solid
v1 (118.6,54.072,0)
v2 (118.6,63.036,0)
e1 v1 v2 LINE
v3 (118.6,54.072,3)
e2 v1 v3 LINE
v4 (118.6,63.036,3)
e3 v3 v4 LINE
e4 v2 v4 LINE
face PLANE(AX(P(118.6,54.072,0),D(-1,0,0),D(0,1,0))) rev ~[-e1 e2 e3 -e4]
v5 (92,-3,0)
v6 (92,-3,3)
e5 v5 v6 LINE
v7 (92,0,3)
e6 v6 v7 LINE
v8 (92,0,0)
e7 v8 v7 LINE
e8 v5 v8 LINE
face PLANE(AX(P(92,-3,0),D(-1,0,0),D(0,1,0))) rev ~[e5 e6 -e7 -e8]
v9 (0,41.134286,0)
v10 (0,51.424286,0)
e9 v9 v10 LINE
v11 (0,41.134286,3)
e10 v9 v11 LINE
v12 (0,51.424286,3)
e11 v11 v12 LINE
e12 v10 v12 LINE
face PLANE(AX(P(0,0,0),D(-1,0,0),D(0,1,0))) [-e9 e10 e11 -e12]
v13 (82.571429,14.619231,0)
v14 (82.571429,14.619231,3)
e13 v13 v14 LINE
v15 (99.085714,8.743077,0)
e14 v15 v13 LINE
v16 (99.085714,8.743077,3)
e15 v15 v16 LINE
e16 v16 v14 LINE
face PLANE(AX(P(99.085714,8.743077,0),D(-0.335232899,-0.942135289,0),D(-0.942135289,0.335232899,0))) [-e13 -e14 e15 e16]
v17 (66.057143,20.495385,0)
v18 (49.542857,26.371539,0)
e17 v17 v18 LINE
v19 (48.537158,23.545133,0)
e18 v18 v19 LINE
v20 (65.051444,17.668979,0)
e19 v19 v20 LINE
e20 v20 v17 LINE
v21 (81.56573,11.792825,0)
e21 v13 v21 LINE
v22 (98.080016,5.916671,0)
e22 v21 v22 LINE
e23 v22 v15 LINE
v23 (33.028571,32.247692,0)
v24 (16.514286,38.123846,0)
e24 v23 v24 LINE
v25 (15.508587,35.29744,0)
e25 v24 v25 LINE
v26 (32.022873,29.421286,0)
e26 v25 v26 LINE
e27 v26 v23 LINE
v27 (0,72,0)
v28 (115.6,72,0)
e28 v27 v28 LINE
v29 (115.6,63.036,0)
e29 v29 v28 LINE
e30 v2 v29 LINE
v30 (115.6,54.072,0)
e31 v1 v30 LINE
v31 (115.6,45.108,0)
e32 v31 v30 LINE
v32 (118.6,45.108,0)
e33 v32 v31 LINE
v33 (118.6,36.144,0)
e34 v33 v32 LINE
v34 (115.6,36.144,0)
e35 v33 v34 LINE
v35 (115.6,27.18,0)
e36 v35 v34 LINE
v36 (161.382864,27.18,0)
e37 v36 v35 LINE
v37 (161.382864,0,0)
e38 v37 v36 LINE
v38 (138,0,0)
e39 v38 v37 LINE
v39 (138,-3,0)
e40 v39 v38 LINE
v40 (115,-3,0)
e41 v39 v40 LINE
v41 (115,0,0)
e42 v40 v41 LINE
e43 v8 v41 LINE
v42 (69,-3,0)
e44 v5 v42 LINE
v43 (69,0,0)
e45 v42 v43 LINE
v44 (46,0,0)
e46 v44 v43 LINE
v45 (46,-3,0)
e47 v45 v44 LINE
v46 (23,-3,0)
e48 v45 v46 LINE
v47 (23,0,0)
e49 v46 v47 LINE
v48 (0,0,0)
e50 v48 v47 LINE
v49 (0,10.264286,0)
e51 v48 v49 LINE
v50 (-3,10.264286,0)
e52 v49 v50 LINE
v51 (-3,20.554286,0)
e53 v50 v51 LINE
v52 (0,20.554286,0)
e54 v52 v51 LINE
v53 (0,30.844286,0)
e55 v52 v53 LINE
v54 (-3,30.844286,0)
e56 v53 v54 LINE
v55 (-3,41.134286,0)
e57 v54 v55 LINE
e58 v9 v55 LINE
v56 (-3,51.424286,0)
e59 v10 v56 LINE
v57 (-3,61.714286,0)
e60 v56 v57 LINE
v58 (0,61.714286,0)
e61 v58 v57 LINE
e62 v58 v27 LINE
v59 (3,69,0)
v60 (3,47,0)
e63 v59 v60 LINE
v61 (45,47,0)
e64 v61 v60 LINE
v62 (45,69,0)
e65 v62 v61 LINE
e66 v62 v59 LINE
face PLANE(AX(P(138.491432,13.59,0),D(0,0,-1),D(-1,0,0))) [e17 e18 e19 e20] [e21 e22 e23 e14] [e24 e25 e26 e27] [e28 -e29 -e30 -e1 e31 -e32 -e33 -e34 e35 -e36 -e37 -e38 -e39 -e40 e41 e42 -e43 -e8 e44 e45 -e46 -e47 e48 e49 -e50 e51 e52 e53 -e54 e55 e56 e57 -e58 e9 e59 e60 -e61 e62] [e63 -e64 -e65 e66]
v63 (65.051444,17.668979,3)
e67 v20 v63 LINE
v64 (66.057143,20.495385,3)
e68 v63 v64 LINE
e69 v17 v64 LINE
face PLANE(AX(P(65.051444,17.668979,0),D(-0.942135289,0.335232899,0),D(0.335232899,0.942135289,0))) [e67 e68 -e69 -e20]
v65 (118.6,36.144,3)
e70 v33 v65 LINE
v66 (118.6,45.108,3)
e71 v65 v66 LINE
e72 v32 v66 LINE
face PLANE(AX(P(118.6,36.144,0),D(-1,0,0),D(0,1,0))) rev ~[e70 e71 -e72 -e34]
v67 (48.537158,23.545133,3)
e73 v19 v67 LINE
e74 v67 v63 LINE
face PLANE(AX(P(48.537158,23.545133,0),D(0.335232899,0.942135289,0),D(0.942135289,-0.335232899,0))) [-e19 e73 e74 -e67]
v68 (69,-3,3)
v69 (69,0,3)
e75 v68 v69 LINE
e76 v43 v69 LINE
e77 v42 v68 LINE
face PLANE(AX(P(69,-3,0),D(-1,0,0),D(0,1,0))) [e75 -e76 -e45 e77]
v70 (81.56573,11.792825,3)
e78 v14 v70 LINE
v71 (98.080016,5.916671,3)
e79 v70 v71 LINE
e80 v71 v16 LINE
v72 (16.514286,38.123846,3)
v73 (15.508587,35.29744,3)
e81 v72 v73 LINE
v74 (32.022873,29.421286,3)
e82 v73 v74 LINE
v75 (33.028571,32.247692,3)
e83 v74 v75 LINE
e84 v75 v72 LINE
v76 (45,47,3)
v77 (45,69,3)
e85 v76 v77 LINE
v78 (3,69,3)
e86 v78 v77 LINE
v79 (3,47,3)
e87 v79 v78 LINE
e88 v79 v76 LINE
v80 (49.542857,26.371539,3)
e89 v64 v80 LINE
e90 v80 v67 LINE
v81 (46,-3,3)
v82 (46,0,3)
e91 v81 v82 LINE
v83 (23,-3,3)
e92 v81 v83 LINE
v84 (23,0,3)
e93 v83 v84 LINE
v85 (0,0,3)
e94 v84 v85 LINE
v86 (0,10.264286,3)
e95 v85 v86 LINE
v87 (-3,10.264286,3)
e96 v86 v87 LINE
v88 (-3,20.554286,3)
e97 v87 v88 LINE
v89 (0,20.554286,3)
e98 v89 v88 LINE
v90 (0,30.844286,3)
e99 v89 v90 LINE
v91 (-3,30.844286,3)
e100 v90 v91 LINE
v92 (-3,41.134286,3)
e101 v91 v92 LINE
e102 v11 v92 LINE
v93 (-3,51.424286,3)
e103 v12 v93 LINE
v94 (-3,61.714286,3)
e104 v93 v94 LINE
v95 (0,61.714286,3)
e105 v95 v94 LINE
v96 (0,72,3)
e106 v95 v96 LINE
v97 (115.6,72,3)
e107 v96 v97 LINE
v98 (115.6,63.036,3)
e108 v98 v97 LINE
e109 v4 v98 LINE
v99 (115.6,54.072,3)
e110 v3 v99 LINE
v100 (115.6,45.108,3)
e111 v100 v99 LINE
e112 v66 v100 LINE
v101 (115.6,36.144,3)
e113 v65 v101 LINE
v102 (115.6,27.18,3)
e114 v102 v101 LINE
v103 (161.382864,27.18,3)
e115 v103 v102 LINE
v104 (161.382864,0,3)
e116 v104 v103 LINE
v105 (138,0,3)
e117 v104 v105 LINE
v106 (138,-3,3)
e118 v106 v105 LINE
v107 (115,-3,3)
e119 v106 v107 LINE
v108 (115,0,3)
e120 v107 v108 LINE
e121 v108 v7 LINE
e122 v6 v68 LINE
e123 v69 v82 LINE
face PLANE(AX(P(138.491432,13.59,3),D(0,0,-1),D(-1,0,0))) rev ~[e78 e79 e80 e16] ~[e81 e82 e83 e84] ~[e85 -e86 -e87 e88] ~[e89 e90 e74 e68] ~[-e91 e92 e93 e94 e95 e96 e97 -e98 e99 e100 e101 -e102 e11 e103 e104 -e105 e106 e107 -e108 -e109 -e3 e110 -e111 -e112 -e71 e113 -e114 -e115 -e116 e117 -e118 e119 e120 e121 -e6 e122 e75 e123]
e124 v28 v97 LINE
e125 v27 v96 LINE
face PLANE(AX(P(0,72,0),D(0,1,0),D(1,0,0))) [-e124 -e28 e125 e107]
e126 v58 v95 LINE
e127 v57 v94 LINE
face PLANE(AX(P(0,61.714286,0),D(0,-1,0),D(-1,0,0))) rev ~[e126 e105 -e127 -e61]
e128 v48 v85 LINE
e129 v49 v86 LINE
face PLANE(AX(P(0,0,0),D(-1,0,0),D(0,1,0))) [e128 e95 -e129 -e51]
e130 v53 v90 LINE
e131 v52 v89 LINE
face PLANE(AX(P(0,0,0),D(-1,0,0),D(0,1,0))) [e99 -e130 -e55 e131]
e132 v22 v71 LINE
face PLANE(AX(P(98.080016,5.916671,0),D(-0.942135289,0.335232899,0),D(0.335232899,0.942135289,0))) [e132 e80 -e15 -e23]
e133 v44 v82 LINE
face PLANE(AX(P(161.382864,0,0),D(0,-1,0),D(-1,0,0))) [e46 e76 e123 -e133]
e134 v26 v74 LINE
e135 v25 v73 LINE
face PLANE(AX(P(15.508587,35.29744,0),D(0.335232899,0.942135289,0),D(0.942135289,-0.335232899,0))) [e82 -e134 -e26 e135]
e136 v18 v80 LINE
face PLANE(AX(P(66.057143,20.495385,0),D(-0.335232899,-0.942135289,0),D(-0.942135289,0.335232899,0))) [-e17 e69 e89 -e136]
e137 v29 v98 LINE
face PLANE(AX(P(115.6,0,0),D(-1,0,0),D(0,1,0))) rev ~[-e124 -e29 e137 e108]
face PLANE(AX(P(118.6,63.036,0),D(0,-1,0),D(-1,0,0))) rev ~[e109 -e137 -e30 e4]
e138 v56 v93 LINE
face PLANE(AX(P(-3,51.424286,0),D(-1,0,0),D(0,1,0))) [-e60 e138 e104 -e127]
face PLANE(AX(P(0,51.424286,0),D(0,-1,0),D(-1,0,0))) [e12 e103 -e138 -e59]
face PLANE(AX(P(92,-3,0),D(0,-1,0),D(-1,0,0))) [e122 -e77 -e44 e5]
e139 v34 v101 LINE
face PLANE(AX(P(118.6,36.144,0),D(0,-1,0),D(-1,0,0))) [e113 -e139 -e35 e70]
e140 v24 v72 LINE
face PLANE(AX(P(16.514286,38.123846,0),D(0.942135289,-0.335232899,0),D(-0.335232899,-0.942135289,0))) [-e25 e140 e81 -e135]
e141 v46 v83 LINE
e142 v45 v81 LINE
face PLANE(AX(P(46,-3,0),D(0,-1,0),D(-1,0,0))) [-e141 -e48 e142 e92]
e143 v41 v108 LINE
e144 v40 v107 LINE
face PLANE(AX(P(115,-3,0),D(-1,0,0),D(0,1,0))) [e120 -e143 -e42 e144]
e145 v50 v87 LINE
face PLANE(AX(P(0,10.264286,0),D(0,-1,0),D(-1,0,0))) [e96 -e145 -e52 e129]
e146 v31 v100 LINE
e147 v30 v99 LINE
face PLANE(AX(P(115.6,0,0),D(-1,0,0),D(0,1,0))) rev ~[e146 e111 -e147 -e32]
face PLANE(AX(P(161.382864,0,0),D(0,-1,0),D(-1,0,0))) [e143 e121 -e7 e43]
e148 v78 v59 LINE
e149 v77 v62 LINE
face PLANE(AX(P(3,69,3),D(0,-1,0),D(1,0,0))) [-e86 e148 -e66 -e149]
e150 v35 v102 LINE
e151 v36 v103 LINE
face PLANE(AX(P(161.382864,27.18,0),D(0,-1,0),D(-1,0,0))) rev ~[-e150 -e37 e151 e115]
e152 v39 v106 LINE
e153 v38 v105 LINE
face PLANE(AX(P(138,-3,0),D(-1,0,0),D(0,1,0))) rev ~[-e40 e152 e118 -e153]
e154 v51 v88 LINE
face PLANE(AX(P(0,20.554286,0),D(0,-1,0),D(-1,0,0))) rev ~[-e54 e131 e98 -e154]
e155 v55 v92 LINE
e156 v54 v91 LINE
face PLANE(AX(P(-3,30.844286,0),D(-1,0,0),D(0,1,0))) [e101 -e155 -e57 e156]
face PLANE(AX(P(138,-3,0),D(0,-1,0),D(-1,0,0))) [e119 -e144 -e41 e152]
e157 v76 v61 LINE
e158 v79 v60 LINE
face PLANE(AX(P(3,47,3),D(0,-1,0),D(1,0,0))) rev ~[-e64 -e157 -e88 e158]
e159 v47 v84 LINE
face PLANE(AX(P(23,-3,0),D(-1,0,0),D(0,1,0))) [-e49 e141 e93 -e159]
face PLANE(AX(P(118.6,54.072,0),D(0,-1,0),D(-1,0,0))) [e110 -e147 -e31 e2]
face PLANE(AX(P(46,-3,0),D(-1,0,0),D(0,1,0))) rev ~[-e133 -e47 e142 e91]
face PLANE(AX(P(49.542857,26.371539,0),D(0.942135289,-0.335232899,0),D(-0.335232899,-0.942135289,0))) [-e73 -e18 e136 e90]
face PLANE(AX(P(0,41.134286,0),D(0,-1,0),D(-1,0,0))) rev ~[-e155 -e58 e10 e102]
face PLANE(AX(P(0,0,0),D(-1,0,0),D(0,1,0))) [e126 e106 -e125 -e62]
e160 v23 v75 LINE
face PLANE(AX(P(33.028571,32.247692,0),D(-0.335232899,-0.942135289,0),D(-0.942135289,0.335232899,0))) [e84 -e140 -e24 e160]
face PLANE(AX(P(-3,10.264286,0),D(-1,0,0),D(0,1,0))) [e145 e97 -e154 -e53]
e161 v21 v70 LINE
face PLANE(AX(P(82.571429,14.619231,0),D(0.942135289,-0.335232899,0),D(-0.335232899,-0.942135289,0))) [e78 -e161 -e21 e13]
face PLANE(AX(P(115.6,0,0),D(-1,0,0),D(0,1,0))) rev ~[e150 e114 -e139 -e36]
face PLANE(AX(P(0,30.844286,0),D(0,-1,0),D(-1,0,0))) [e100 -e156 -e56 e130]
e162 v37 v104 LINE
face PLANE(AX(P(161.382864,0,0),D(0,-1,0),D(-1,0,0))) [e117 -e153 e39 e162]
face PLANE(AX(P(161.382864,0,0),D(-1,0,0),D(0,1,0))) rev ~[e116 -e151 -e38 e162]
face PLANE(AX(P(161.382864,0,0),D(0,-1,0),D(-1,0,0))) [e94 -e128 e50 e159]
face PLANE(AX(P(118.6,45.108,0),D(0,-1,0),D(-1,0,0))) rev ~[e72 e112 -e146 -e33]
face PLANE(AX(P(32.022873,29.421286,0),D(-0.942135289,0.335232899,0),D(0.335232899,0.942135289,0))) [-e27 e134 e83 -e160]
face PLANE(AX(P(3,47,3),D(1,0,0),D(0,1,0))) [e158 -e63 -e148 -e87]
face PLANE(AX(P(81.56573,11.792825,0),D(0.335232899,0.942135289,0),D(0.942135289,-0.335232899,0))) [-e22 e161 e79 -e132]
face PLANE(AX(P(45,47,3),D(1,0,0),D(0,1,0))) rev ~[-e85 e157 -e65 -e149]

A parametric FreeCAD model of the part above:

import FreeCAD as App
import Part
import Sketcher
from FreeCAD import Vector

doc = App.newDocument("Part")
body = doc.addObject("PartDesign::Body", "Body")

sketch1 = body.newObject("Sketcher::SketchObject", "Sketch")
sketch1.AttachmentSupport = (doc.getObject("XY_Plane"), [""])
sketch1.MapMode = "FlatFace"
sketch1.addGeometry([
    Part.LineSegment(Vector(0, 72, 0), Vector(0, 0, 0)),
    Part.LineSegment(Vector(0, 0, 0), Vector(115.6, 0, 0)),
    Part.LineSegment(Vector(115.6, 0, 0), Vector(115.6, 72, 0)),
    Part.LineSegment(Vector(115.6, 72, 0), Vector(0, 72, 0)),
    Part.LineSegment(Vector(81.6, 11.8, 0), Vector(82.6, 14.6, 0)),
    Part.LineSegment(Vector(82.6, 14.6, 0), Vector(99.1, 8.7, 0)),
    Part.LineSegment(Vector(99.1, 8.7, 0), Vector(98.1, 5.9, 0)),
    Part.LineSegment(Vector(98.1, 5.9, 0), Vector(81.6, 11.8, 0)),
    Part.LineSegment(Vector(48.5, 23.5, 0), Vector(49.5, 26.4, 0)),
    Part.LineSegment(Vector(49.5, 26.4, 0), Vector(66.1, 20.5, 0)),
    Part.LineSegment(Vector(66.1, 20.5, 0), Vector(65.1, 17.7, 0)),
    Part.LineSegment(Vector(65.1, 17.7, 0), Vector(48.5, 23.5, 0)),
    Part.LineSegment(Vector(15.5, 35.3, 0), Vector(16.5, 38.1, 0)),
    Part.LineSegment(Vector(16.5, 38.1, 0), Vector(33, 32.2, 0)),
    Part.LineSegment(Vector(33, 32.2, 0), Vector(32, 29.4, 0)),
    Part.LineSegment(Vector(32, 29.4, 0), Vector(15.5, 35.3, 0)),
], False)
sketch1.addConstraint([
    Sketcher.Constraint("Coincident", 0, 2, 1, 1),
    Sketcher.Constraint("Coincident", 1, 2, 2, 1),
    Sketcher.Constraint("Coincident", 2, 2, 3, 1),
    Sketcher.Constraint("Coincident", 3, 2, 0, 1),
    Sketcher.Constraint("Coincident", 4, 2, 5, 1),
    Sketcher.Constraint("Coincident", 5, 2, 6, 1),
    Sketcher.Constraint("Coincident", 6, 2, 7, 1),
    Sketcher.Constraint("Coincident", 7, 2, 4, 1),
    Sketcher.Constraint("Coincident", 8, 2, 9, 1),
    Sketcher.Constraint("Coincident", 9, 2, 10, 1),
    Sketcher.Constraint("Coincident", 10, 2, 11, 1),
    Sketcher.Constraint("Coincident", 11, 2, 8, 1),
    Sketcher.Constraint("Coincident", 12, 2, 13, 1),
    Sketcher.Constraint("Coincident", 13, 2, 14, 1),
    Sketcher.Constraint("Coincident", 14, 2, 15, 1),
    Sketcher.Constraint("Coincident", 15, 2, 12, 1),
    Sketcher.Constraint("Vertical", 0),
    Sketcher.Constraint("Horizontal", 1),
    Sketcher.Constraint("Vertical", 2),
    Sketcher.Constraint("Horizontal", 3),
    Sketcher.Constraint("Coincident", 0, 2, -1, 1),
    Sketcher.Constraint("Perpendicular", 4, 5),
    Sketcher.Constraint("Perpendicular", 5, 6),
    Sketcher.Constraint("Perpendicular", 6, 7),
    Sketcher.Constraint("Perpendicular", 7, 8),
    Sketcher.Constraint("Perpendicular", 8, 9),
    Sketcher.Constraint("Perpendicular", 9, 10),
    Sketcher.Constraint("Perpendicular", 10, 11),
    Sketcher.Constraint("Perpendicular", 11, 12),
    Sketcher.Constraint("Perpendicular", 12, 13),
    Sketcher.Constraint("Perpendicular", 13, 14),
    Sketcher.Constraint("Perpendicular", 14, 15),
    Sketcher.Constraint("Equal", 6, 8),
    Sketcher.Constraint("Equal", 7, 9),
    Sketcher.Constraint("Equal", 10, 12),
    Sketcher.Constraint("Equal", 11, 13),
    Sketcher.Constraint("DistanceY", 0, 2, 0, 1, 72.0),
    Sketcher.Constraint("Distance", 4, 3.0),
    Sketcher.Constraint("DistanceX", 1, 1, 1, 2, 115.6),
    Sketcher.Constraint("DistanceX", 6, 2, 5, 2, 1.005699),
    Sketcher.Constraint("DistanceY", 4, 2, 11, 2, 8.925902),
    Sketcher.Constraint("DistanceY", 8, 2, 15, 2, 8.925902),
    Sketcher.Constraint("Distance", 5, 17.528571),
    Sketcher.Constraint("DistanceX", -1, 1, 4, 2, 82.571429),
    Sketcher.Constraint("DistanceY", -1, 1, 4, 2, 14.619231),
    Sketcher.Constraint("DistanceX", -1, 1, 11, 2, 48.537158),
    Sketcher.Constraint("DistanceX", -1, 1, 13, 2, 33.028571),
])
pad1 = body.newObject("PartDesign::Pad", "Pad")
pad1.Profile = sketch1
pad1.Length = 3

sketch2 = body.newObject("Sketcher::SketchObject", "Sketch001")
sketch2.AttachmentSupport = (doc.getObject("XY_Plane"), [""])
sketch2.MapMode = "FlatFace"
sketch2.AttachmentOffset = App.Placement(Vector(0, 0, 3), App.Rotation())
sketch2.addGeometry([
    Part.LineSegment(Vector(3, 69, 0), Vector(3, 47, 0)),
    Part.LineSegment(Vector(3, 47, 0), Vector(45, 47, 0)),
    Part.LineSegment(Vector(45, 47, 0), Vector(45, 69, 0)),
    Part.LineSegment(Vector(45, 69, 0), Vector(3, 69, 0)),
], False)
sketch2.addConstraint([
    Sketcher.Constraint("Coincident", 0, 2, 1, 1),
    Sketcher.Constraint("Coincident", 1, 2, 2, 1),
    Sketcher.Constraint("Coincident", 2, 2, 3, 1),
    Sketcher.Constraint("Coincident", 3, 2, 0, 1),
    Sketcher.Constraint("Vertical", 0),
    Sketcher.Constraint("Horizontal", 1),
    Sketcher.Constraint("Vertical", 2),
    Sketcher.Constraint("Horizontal", 3),
    Sketcher.Constraint("DistanceX", 1, 1, 1, 2, 42.0),
    Sketcher.Constraint("DistanceY", 0, 2, 0, 1, 22.0),
    Sketcher.Constraint("DistanceX", -1, 1, 0, 2, 3.0),
    Sketcher.Constraint("DistanceY", -1, 1, 0, 2, 47.0),
])
pocket1 = body.newObject("PartDesign::Pocket", "Pocket")
pocket1.Profile = sketch2
pocket1.Type = "UpToFirst"

sketch3 = body.newObject("Sketcher::SketchObject", "Sketch002")
sketch3.AttachmentSupport = (doc.getObject("XY_Plane"), [""])
sketch3.MapMode = "FlatFace"
sketch3.addGeometry([
    Part.LineSegment(Vector(0, 61.7, 0), Vector(0, 51.4, 0)),
    Part.LineSegment(Vector(0, 51.4, 0), Vector(-3, 51.4, 0)),
    Part.LineSegment(Vector(-3, 51.4, 0), Vector(-3, 61.7, 0)),
    Part.LineSegment(Vector(-3, 61.7, 0), Vector(0, 61.7, 0)),
    Part.LineSegment(Vector(0, 41.1, 0), Vector(0, 30.8, 0)),
    Part.LineSegment(Vector(0, 30.8, 0), Vector(-3, 30.8, 0)),
    Part.LineSegment(Vector(-3, 30.8, 0), Vector(-3, 41.1, 0)),
    Part.LineSegment(Vector(-3, 41.1, 0), Vector(0, 41.1, 0)),
    Part.LineSegment(Vector(0, 20.6, 0), Vector(0, 10.3, 0)),
    Part.LineSegment(Vector(0, 10.3, 0), Vector(-3, 10.3, 0)),
    Part.LineSegment(Vector(-3, 10.3, 0), Vector(-3, 20.6, 0)),
    Part.LineSegment(Vector(-3, 20.6, 0), Vector(0, 20.6, 0)),
    Part.LineSegment(Vector(118.6, 63, 0), Vector(118.6, 54.1, 0)),
    Part.LineSegment(Vector(118.6, 54.1, 0), Vector(115.6, 54.1, 0)),
    Part.LineSegment(Vector(115.6, 54.1, 0), Vector(115.6, 63, 0)),
    Part.LineSegment(Vector(115.6, 63, 0), Vector(118.6, 63, 0)),
    Part.LineSegment(Vector(118.6, 45.1, 0), Vector(118.6, 36.1, 0)),
    Part.LineSegment(Vector(118.6, 36.1, 0), Vector(115.6, 36.1, 0)),
    Part.LineSegment(Vector(115.6, 36.1, 0), Vector(115.6, 45.1, 0)),
    Part.LineSegment(Vector(115.6, 45.1, 0), Vector(118.6, 45.1, 0)),
], False)
sketch3.addConstraint([
    Sketcher.Constraint("Coincident", 0, 2, 1, 1),
    Sketcher.Constraint("Coincident", 1, 2, 2, 1),
    Sketcher.Constraint("Coincident", 2, 2, 3, 1),
    Sketcher.Constraint("Coincident", 3, 2, 0, 1),
    Sketcher.Constraint("Coincident", 4, 2, 5, 1),
    Sketcher.Constraint("Coincident", 5, 2, 6, 1),
    Sketcher.Constraint("Coincident", 6, 2, 7, 1),
    Sketcher.Constraint("Coincident", 7, 2, 4, 1),
    Sketcher.Constraint("Coincident", 8, 2, 9, 1),
    Sketcher.Constraint("Coincident", 9, 2, 10, 1),
    Sketcher.Constraint("Coincident", 10, 2, 11, 1),
    Sketcher.Constraint("Coincident", 11, 2, 8, 1),
    Sketcher.Constraint("Coincident", 12, 2, 13, 1),
    Sketcher.Constraint("Coincident", 13, 2, 14, 1),
    Sketcher.Constraint("Coincident", 14, 2, 15, 1),
    Sketcher.Constraint("Coincident", 15, 2, 12, 1),
    Sketcher.Constraint("Coincident", 16, 2, 17, 1),
    Sketcher.Constraint("Coincident", 17, 2, 18, 1),
    Sketcher.Constraint("Coincident", 18, 2, 19, 1),
    Sketcher.Constraint("Coincident", 19, 2, 16, 1),
    Sketcher.Constraint("Vertical", 0),
    Sketcher.Constraint("Horizontal", 1),
    Sketcher.Constraint("Vertical", 2),
    Sketcher.Constraint("Horizontal", 3),
    Sketcher.Constraint("Vertical", 4),
    Sketcher.Constraint("Horizontal", 5),
    Sketcher.Constraint("Vertical", 6),
    Sketcher.Constraint("Horizontal", 7),
    Sketcher.Constraint("Vertical", 8),
    Sketcher.Constraint("Horizontal", 9),
    Sketcher.Constraint("Vertical", 10),
    Sketcher.Constraint("Horizontal", 11),
    Sketcher.Constraint("Vertical", 12),
    Sketcher.Constraint("Horizontal", 13),
    Sketcher.Constraint("Vertical", 14),
    Sketcher.Constraint("Horizontal", 15),
    Sketcher.Constraint("Vertical", 16),
    Sketcher.Constraint("Horizontal", 17),
    Sketcher.Constraint("Vertical", 18),
    Sketcher.Constraint("Horizontal", 19),
    Sketcher.Constraint("PointOnObject", 0, 2, -2),
    Sketcher.Constraint("PointOnObject", 4, 2, -2),
    Sketcher.Constraint("PointOnObject", 8, 2, -2),
    Sketcher.Constraint("Vertical", 2, 2, 5, 2),
    Sketcher.Constraint("Vertical", 6, 2, 9, 2),
    Sketcher.Constraint("Vertical", 15, 2, 16, 2),
    Sketcher.Constraint("Vertical", 14, 2, 17, 2),
    Sketcher.Constraint("Equal", 11, 13),
    Sketcher.Constraint("Equal", 2, 4),
    Sketcher.Constraint("Equal", 6, 8),
    Sketcher.Constraint("Equal", 14, 16),
    Sketcher.Constraint("DistanceX", 1, 2, 1, 1, 3.0),
    Sketcher.Constraint("DistanceY", 0, 2, 0, 1, 10.29),
    Sketcher.Constraint("DistanceX", -1, 1, 12, 2, 118.6),
    Sketcher.Constraint("DistanceY", 12, 2, 12, 1, 8.964),
    Sketcher.Constraint("DistanceY", 4, 2, 0, 2, 20.58),
    Sketcher.Constraint("DistanceY", 8, 2, 4, 2, 20.58),
    Sketcher.Constraint("DistanceY", -1, 1, 12, 2, 54.072),
    Sketcher.Constraint("DistanceY", -1, 1, 16, 2, 36.144),
    Sketcher.Constraint("DistanceY", -1, 1, 0, 2, 51.424286),
])
pad2 = body.newObject("PartDesign::Pad", "Pad001")
pad2.Profile = sketch3
pad2.Length = 3

sketch4 = body.newObject("Sketcher::SketchObject", "Sketch003")
sketch4.AttachmentSupport = (doc.getObject("XY_Plane"), [""])
sketch4.MapMode = "FlatFace"
sketch4.addGeometry([
    Part.LineSegment(Vector(161, 27, 0), Vector(161, 0, 0)),
    Part.LineSegment(Vector(161, 0, 0), Vector(116, 0, 0)),
    Part.LineSegment(Vector(116, 0, 0), Vector(116, 27, 0)),
    Part.LineSegment(Vector(116, 27, 0), Vector(161, 27, 0)),
], False)
sketch4.addConstraint([
    Sketcher.Constraint("Coincident", 0, 2, 1, 1),
    Sketcher.Constraint("Coincident", 1, 2, 2, 1),
    Sketcher.Constraint("Coincident", 2, 2, 3, 1),
    Sketcher.Constraint("Coincident", 3, 2, 0, 1),
    Sketcher.Constraint("Vertical", 0),
    Sketcher.Constraint("Horizontal", 1),
    Sketcher.Constraint("Vertical", 2),
    Sketcher.Constraint("Horizontal", 3),
    Sketcher.Constraint("PointOnObject", 0, 2, -1),
    Sketcher.Constraint("DistanceY", 0, 2, 0, 1, 27.18),
    Sketcher.Constraint("DistanceX", -1, 1, 1, 2, 115.6),
    Sketcher.Constraint("DistanceX", 1, 2, 1, 1, 45.782864),
])
pad3 = body.newObject("PartDesign::Pad", "Pad002")
pad3.Profile = sketch4
pad3.Length = 3

sketch5 = body.newObject("Sketcher::SketchObject", "Sketch004")
sketch5.AttachmentSupport = (doc.getObject("XY_Plane"), [""])
sketch5.MapMode = "FlatFace"
sketch5.addGeometry([
    Part.LineSegment(Vector(46, 0, 0), Vector(46, -3, 0)),
    Part.LineSegment(Vector(46, -3, 0), Vector(23, -3, 0)),
    Part.LineSegment(Vector(23, -3, 0), Vector(23, 0, 0)),
    Part.LineSegment(Vector(23, 0, 0), Vector(46, 0, 0)),
    Part.LineSegment(Vector(92, 0, 0), Vector(92, -3, 0)),
    Part.LineSegment(Vector(92, -3, 0), Vector(69, -3, 0)),
    Part.LineSegment(Vector(69, -3, 0), Vector(69, 0, 0)),
    Part.LineSegment(Vector(69, 0, 0), Vector(92, 0, 0)),
    Part.LineSegment(Vector(138, 0, 0), Vector(138, -3, 0)),
    Part.LineSegment(Vector(138, -3, 0), Vector(115, -3, 0)),
    Part.LineSegment(Vector(115, -3, 0), Vector(115, 0, 0)),
    Part.LineSegment(Vector(115, 0, 0), Vector(138, 0, 0)),
], False)
sketch5.addConstraint([
    Sketcher.Constraint("Coincident", 0, 2, 1, 1),
    Sketcher.Constraint("Coincident", 1, 2, 2, 1),
    Sketcher.Constraint("Coincident", 2, 2, 3, 1),
    Sketcher.Constraint("Coincident", 3, 2, 0, 1),
    Sketcher.Constraint("Coincident", 4, 2, 5, 1),
    Sketcher.Constraint("Coincident", 5, 2, 6, 1),
    Sketcher.Constraint("Coincident", 6, 2, 7, 1),
    Sketcher.Constraint("Coincident", 7, 2, 4, 1),
    Sketcher.Constraint("Coincident", 8, 2, 9, 1),
    Sketcher.Constraint("Coincident", 9, 2, 10, 1),
    Sketcher.Constraint("Coincident", 10, 2, 11, 1),
    Sketcher.Constraint("Coincident", 11, 2, 8, 1),
    Sketcher.Constraint("Vertical", 0),
    Sketcher.Constraint("Horizontal", 1),
    Sketcher.Constraint("Vertical", 2),
    Sketcher.Constraint("Horizontal", 3),
    Sketcher.Constraint("Vertical", 4),
    Sketcher.Constraint("Horizontal", 5),
    Sketcher.Constraint("Vertical", 6),
    Sketcher.Constraint("Horizontal", 7),
    Sketcher.Constraint("Vertical", 8),
    Sketcher.Constraint("Horizontal", 9),
    Sketcher.Constraint("Vertical", 10),
    Sketcher.Constraint("Horizontal", 11),
    Sketcher.Constraint("PointOnObject", 2, 2, -1),
    Sketcher.Constraint("PointOnObject", 6, 2, -1),
    Sketcher.Constraint("PointOnObject", 10, 2, -1),
    Sketcher.Constraint("Horizontal", 1, 2, 4, 2),
    Sketcher.Constraint("Horizontal", 5, 2, 8, 2),
    Sketcher.Constraint("Equal", 3, 5),
    Sketcher.Constraint("Equal", 7, 9),
    Sketcher.Constraint("DistanceX", 1, 2, 1, 1, 23.0),
    Sketcher.Constraint("DistanceY", 0, 2, 0, 1, 3.0),
    Sketcher.Constraint("DistanceX", -1, 1, 0, 2, 46.0),
    Sketcher.Constraint("DistanceX", -1, 1, 4, 2, 92.0),
    Sketcher.Constraint("DistanceX", -1, 1, 8, 2, 138.0),
])
pad4 = body.newObject("PartDesign::Pad", "Pad003")
pad4.Profile = sketch5
pad4.Length = 3

doc.recompute()
